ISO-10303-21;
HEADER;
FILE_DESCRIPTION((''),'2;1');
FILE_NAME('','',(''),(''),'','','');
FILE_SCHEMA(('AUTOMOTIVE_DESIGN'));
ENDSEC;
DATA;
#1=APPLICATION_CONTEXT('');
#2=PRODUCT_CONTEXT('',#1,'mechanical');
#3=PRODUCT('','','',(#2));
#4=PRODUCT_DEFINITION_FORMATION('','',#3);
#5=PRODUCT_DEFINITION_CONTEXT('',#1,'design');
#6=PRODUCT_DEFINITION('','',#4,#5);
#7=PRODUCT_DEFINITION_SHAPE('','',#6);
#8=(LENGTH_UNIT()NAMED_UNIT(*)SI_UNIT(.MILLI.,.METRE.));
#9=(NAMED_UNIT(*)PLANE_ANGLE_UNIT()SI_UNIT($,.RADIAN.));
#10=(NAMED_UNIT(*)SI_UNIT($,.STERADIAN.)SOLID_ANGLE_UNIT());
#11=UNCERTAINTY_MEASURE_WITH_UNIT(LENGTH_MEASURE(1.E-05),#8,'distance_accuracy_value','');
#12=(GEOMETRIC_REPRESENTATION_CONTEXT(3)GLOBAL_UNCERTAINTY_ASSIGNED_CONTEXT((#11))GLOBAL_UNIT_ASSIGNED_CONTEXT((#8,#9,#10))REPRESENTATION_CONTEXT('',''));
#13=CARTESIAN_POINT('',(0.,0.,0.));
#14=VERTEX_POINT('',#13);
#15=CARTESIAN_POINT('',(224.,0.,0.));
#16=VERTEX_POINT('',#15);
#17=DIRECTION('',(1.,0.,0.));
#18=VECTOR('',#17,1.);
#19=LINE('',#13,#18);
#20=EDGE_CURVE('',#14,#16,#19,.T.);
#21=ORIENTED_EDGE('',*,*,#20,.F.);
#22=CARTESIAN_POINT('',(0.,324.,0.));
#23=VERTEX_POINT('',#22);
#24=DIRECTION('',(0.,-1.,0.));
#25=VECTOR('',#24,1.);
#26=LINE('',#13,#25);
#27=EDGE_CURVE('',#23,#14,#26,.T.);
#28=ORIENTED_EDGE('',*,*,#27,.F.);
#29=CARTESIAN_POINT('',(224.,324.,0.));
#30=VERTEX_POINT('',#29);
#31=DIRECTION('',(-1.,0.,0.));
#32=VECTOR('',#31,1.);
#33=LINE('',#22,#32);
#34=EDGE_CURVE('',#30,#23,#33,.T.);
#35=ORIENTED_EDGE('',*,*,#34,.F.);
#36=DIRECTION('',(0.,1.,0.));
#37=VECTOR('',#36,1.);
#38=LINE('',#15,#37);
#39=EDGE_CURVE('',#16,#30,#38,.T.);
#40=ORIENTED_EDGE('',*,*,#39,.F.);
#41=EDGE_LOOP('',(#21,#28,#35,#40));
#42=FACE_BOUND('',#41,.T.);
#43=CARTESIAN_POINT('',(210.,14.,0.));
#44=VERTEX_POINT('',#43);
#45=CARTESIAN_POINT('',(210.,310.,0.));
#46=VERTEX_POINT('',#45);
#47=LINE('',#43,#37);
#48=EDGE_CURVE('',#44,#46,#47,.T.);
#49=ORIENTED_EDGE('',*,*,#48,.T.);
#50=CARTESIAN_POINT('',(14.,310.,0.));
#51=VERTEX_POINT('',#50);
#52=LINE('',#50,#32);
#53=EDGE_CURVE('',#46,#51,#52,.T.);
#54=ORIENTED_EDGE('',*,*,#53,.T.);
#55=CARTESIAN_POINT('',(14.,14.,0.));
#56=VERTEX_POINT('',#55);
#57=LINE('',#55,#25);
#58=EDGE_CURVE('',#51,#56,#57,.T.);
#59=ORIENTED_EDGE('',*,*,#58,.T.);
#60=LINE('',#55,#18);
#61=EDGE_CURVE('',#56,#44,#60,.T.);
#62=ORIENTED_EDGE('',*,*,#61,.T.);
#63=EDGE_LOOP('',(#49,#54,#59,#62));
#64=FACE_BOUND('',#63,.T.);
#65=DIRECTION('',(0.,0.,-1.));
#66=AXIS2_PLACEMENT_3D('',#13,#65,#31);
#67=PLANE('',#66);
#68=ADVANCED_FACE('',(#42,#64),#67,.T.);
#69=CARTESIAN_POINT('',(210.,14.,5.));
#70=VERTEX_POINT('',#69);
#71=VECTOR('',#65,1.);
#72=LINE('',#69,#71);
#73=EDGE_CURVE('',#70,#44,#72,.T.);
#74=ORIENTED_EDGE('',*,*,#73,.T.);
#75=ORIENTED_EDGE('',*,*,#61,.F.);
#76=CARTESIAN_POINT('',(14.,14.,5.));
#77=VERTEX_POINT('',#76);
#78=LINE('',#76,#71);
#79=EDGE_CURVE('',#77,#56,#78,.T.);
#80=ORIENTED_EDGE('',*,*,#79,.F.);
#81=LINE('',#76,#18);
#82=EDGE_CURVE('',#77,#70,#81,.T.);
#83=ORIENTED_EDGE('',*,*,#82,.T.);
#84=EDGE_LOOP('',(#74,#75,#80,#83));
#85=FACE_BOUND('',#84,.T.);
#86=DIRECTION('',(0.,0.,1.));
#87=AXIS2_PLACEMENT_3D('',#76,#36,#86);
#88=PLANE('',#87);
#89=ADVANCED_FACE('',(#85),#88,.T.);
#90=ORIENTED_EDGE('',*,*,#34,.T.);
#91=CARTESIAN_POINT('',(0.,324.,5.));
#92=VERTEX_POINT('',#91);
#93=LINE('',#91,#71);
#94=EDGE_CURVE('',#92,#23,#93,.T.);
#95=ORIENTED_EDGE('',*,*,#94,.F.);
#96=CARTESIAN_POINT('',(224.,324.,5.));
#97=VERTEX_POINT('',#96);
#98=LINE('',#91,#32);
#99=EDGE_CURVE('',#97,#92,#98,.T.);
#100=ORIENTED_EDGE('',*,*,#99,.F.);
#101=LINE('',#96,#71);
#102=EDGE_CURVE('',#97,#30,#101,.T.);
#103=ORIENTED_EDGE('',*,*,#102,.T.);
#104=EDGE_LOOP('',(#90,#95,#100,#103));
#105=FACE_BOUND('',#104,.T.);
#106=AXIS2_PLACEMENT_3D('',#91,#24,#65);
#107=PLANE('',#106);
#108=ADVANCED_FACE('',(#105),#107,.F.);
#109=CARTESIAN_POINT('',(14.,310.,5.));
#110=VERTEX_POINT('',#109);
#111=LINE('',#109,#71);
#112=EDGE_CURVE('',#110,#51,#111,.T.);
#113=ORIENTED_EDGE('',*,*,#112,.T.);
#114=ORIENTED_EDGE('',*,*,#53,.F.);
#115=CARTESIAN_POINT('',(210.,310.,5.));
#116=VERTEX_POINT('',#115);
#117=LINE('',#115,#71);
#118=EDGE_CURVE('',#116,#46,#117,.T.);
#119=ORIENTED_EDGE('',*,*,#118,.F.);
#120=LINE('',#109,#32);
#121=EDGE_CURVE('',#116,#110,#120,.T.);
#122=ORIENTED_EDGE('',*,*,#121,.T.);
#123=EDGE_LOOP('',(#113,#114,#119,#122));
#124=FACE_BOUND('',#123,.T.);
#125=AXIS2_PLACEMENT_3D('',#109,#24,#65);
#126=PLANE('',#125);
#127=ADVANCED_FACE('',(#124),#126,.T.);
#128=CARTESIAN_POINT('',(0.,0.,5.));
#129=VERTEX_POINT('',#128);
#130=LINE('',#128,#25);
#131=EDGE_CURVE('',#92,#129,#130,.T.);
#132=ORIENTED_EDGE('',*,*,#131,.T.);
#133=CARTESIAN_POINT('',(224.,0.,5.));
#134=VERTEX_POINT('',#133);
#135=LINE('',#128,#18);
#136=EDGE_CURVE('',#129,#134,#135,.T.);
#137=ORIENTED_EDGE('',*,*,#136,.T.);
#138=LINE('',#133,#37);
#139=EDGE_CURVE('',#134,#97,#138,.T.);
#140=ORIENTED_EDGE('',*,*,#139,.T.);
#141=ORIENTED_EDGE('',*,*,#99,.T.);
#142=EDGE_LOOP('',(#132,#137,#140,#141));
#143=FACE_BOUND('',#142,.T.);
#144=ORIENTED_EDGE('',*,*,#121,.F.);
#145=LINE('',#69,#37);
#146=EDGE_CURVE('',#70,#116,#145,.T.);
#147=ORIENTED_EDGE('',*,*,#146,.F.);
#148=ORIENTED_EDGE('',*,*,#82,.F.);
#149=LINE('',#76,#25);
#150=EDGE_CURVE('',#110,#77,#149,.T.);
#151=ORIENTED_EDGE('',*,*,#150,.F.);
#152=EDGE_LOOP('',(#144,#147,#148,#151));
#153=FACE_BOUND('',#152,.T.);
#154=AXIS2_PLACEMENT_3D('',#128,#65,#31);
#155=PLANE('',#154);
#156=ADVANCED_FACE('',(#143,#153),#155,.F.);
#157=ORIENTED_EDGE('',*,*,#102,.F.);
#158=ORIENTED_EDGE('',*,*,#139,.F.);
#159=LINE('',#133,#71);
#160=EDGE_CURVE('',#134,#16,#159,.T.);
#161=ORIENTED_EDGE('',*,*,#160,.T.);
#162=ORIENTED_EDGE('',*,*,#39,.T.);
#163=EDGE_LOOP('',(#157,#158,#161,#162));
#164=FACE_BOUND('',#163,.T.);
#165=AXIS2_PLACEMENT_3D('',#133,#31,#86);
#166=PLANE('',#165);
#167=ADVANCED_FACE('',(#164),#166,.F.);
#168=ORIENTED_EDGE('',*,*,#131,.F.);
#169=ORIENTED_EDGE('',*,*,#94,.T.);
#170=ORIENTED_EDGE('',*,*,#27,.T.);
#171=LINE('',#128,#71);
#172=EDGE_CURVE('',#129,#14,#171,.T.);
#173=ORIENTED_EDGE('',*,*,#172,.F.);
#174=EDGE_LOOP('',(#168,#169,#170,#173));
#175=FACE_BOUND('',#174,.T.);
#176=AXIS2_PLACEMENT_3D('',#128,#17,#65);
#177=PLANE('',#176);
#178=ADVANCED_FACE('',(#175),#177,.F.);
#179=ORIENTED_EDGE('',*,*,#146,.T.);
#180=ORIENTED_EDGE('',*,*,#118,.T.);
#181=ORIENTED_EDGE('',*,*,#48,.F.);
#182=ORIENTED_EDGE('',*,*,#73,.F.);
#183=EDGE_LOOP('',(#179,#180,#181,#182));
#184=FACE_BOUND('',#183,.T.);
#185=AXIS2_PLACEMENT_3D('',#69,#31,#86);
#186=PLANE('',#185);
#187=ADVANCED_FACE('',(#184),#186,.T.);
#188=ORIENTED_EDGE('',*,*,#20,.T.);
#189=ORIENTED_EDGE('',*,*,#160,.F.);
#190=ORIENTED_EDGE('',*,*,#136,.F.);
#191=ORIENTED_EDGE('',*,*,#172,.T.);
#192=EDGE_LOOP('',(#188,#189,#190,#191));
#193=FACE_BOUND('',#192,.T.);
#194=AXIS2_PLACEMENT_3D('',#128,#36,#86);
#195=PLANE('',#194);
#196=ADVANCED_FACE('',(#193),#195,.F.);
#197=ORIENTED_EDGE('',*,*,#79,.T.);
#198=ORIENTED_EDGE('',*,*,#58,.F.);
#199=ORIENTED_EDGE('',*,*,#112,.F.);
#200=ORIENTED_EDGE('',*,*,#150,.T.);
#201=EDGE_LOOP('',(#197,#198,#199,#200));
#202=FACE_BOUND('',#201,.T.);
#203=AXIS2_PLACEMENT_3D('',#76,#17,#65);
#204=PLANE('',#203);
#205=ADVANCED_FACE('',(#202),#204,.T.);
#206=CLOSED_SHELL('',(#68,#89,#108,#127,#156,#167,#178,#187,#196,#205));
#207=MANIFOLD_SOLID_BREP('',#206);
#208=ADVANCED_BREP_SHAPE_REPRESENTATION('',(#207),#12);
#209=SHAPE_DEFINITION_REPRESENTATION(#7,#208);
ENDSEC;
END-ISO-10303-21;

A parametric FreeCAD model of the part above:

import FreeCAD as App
import Part
import Sketcher
Q = App.Units.Quantity

doc = App.newDocument("Part")
body = doc.addObject("PartDesign::Body", "Body")

# Sketch on XY plane
sketch1 = doc.addObject("Sketcher::SketchObject", "Sketch")
body.addObject(sketch1)
sketch1.AttachmentSupport = (doc.XY_Plane, [""])
sketch1.MapMode = "FlatFace"
sketch1.addGeometry(Part.LineSegment(App.Vector(0, 324, 0), App.Vector(0, 0, 0)), False)
sketch1.addGeometry(Part.LineSegment(App.Vector(0, 0, 0), App.Vector(224, 0, 0)), False)
sketch1.addGeometry(Part.LineSegment(App.Vector(224, 0, 0), App.Vector(224, 324, 0)), False)
sketch1.addGeometry(Part.LineSegment(App.Vector(224, 324, 0), App.Vector(0, 324, 0)), False)
sketch1.addGeometry(Part.LineSegment(App.Vector(210, 14, 0), App.Vector(14, 14, 0)), False)
sketch1.addGeometry(Part.LineSegment(App.Vector(14, 14, 0), App.Vector(14, 310, 0)), False)
sketch1.addGeometry(Part.LineSegment(App.Vector(14, 310, 0), App.Vector(210, 310, 0)), False)
sketch1.addGeometry(Part.LineSegment(App.Vector(210, 310, 0), App.Vector(210, 14, 0)), False)
sketch1.addConstraint(Sketcher.Constraint("Coincident", 0, 2, 1, 1))
sketch1.addConstraint(Sketcher.Constraint("Coincident", 1, 2, 2, 1))
sketch1.addConstraint(Sketcher.Constraint("Coincident", 2, 2, 3, 1))
sketch1.addConstraint(Sketcher.Constraint("Coincident", 3, 2, 0, 1))
sketch1.addConstraint(Sketcher.Constraint("Coincident", 4, 2, 5, 1))
sketch1.addConstraint(Sketcher.Constraint("Coincident", 5, 2, 6, 1))
sketch1.addConstraint(Sketcher.Constraint("Coincident", 6, 2, 7, 1))
sketch1.addConstraint(Sketcher.Constraint("Coincident", 7, 2, 4, 1))
sketch1.addConstraint(Sketcher.Constraint("Vertical", 0))
sketch1.addConstraint(Sketcher.Constraint("Horizontal", 1))
sketch1.addConstraint(Sketcher.Constraint("Vertical", 2))
sketch1.addConstraint(Sketcher.Constraint("Horizontal", 3))
sketch1.addConstraint(Sketcher.Constraint("Horizontal", 4))
sketch1.addConstraint(Sketcher.Constraint("Vertical", 5))
sketch1.addConstraint(Sketcher.Constraint("Horizontal", 6))
sketch1.addConstraint(Sketcher.Constraint("Vertical", 7))
sketch1.addConstraint(Sketcher.Constraint("Coincident", 0, 2, -1, 1))
sketch1.addConstraint(Sketcher.Constraint("DistanceX", 1, 1, 1, 2, Q("224 mm")))
sketch1.addConstraint(Sketcher.Constraint("DistanceX", 4, 2, 4, 1, Q("196 mm")))
sketch1.addConstraint(Sketcher.Constraint("DistanceY", 0, 2, 0, 1, Q("324 mm")))
sketch1.addConstraint(Sketcher.Constraint("DistanceY", 5, 1, 5, 2, Q("296 mm")))
sketch1.addConstraint(Sketcher.Constraint("DistanceX", -1, 1, 4, 2, Q("14 mm")))
sketch1.addConstraint(Sketcher.Constraint("DistanceY", -1, 1, 4, 2, Q("14 mm")))
pad1 = doc.addObject("PartDesign::Pad", "Pad")
body.addObject(pad1)
pad1.Profile = sketch1
pad1.Length = 5

doc.recompute()
